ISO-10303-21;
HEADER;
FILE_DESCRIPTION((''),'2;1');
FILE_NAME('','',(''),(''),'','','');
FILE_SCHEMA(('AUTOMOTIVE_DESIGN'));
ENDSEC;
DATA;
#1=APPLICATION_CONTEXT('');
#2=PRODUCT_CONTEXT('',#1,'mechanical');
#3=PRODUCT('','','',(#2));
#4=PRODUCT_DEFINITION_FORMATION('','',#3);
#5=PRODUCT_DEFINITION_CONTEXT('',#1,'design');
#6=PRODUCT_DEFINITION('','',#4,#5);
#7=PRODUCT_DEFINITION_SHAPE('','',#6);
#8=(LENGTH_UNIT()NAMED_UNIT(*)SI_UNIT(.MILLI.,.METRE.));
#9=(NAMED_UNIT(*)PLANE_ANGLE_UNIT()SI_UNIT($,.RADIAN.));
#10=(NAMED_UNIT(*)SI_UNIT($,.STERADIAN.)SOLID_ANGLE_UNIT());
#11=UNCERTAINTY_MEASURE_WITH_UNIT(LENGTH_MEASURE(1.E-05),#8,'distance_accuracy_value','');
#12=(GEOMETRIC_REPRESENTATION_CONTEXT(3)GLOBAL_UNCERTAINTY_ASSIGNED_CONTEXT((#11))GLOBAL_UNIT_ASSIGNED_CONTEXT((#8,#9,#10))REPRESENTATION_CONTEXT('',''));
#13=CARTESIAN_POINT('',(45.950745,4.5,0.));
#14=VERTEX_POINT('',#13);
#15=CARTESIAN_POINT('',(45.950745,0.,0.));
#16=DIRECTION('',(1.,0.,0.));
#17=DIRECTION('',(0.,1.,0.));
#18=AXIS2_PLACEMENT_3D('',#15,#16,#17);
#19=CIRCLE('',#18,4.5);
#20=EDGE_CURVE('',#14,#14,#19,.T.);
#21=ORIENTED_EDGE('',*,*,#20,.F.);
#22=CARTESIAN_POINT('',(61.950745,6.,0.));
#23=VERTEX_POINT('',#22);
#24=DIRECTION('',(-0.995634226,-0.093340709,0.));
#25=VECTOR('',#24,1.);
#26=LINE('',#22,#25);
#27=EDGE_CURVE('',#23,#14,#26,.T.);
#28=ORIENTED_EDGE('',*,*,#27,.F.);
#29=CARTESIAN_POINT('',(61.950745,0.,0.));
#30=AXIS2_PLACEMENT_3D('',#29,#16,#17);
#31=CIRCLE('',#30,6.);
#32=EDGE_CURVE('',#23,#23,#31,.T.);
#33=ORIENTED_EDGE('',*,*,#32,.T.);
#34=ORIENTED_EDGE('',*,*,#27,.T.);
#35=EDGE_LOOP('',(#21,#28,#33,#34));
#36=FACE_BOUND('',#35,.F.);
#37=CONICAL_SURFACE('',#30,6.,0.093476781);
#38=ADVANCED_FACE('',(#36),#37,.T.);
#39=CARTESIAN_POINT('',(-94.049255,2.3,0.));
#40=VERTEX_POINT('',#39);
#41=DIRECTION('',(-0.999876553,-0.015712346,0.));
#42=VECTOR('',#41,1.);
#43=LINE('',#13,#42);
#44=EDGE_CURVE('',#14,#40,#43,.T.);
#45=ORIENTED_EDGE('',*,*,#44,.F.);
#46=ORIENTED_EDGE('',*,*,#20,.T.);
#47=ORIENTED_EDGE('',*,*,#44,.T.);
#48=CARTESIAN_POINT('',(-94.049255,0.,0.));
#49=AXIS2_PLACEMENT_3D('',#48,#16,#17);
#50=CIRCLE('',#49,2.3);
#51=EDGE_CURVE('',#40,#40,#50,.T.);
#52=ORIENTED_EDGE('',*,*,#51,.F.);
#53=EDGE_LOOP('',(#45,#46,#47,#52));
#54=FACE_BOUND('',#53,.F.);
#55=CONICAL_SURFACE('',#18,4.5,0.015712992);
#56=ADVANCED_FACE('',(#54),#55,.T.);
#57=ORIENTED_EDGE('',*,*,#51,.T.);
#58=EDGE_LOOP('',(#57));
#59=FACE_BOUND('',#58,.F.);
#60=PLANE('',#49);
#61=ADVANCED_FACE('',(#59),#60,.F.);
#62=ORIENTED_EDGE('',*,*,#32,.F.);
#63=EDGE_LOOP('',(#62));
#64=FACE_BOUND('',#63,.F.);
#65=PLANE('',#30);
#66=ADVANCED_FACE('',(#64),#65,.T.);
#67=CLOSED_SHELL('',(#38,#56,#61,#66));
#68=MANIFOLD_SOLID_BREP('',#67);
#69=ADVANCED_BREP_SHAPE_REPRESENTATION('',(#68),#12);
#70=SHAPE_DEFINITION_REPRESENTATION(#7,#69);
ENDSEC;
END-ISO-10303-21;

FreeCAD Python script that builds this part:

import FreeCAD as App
import Part
import Sketcher
from FreeCAD import Vector

doc = App.newDocument("Part")
body = doc.addObject("PartDesign::Body", "Body")

sketch1 = body.newObject("Sketcher::SketchObject", "Sketch")
sketch1.AttachmentSupport = (doc.getObject("XY_Plane"), [""])
sketch1.MapMode = "FlatFace"
sketch1.addGeometry(Part.LineSegment(Vector(-94, 2.3, 0), Vector(-94, 0, 0)), False)
sketch1.addGeometry(Part.LineSegment(Vector(-94, 0, 0), Vector(62, 0, 0)), False)
sketch1.addGeometry(Part.LineSegment(Vector(62, 0, 0), Vector(62, 6, 0)), False)
sketch1.addGeometry(Part.LineSegment(Vector(62, 6, 0), Vector(46, 4.5, 0)), False)
sketch1.addGeometry(Part.LineSegment(Vector(46, 4.5, 0), Vector(-94, 2.3, 0)), False)
sketch1.addConstraint(Sketcher.Constraint("Coincident", 0, 2, 1, 1))
sketch1.addConstraint(Sketcher.Constraint("Coincident", 1, 2, 2, 1))
sketch1.addConstraint(Sketcher.Constraint("Coincident", 2, 2, 3, 1))
sketch1.addConstraint(Sketcher.Constraint("Coincident", 3, 2, 4, 1))
sketch1.addConstraint(Sketcher.Constraint("Coincident", 4, 2, 0, 1))
sketch1.addConstraint(Sketcher.Constraint("Vertical", 0))
sketch1.addConstraint(Sketcher.Constraint("Horizontal", 1))
sketch1.addConstraint(Sketcher.Constraint("Vertical", 2))
sketch1.addConstraint(Sketcher.Constraint("PointOnObject", 0, 2, -1))
sketch1.addConstraint(Sketcher.Constraint("DistanceX", 1, 1, 1, 2, 156.0))
sketch1.addConstraint(Sketcher.Constraint("DistanceY", 2, 1, 2, 2, 6.0))
sketch1.addConstraint(Sketcher.Constraint("DistanceY", 0, 2, 0, 1, 2.3))
sketch1.addConstraint(Sketcher.Constraint("DistanceX", 3, 2, 2, 2, 16.0))
sketch1.addConstraint(Sketcher.Constraint("DistanceY", -1, 1, 3, 2, 4.5))
sketch1.addConstraint(Sketcher.Constraint("DistanceX", 0, 2, -1, 1, 94.049255))
revolution = body.newObject("PartDesign::Revolution", "Revolution")
revolution.Profile = sketch1
revolution.ReferenceAxis = (sketch1, ["H_Axis"])
revolution.Angle = 360

doc.recompute()
